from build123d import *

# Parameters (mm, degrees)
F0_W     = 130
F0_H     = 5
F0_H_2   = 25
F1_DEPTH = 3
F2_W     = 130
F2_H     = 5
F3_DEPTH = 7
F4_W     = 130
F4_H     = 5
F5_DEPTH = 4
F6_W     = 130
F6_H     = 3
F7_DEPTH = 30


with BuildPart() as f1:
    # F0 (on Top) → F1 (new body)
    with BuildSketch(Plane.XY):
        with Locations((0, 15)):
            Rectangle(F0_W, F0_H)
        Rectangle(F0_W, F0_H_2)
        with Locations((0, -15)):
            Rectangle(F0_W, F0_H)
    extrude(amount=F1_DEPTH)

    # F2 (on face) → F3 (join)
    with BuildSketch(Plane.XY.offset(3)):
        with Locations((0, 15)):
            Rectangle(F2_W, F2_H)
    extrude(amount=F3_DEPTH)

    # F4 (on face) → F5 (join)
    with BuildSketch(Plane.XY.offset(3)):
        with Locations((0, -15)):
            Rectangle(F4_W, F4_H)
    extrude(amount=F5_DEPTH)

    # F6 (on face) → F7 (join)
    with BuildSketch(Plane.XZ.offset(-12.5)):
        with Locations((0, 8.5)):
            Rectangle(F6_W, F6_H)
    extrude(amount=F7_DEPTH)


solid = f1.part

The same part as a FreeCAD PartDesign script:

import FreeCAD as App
import Part
import Sketcher

V = App.Vector
Q = App.Units.Quantity

doc = App.newDocument("Part")
body = doc.addObject("PartDesign::Body", "Body")

# Sketch on XY plane
sketch1 = body.newObject("Sketcher::SketchObject", "Sketch")
sketch1.AttachmentSupport = (doc.getObject("XY_Plane"), [""])
sketch1.MapMode = "FlatFace"
sketch1.addGeometry(Part.LineSegment(V(-65, 18, 0), V(-65, -18, 0)), False)
sketch1.addGeometry(Part.LineSegment(V(-65, -18, 0), V(65, -18, 0)), False)
sketch1.addGeometry(Part.LineSegment(V(65, -18, 0), V(65, 18, 0)), False)
sketch1.addGeometry(Part.LineSegment(V(65, 18, 0), V(-65, 18, 0)), False)
sketch1.addConstraint(Sketcher.Constraint("Coincident", 0, 2, 1, 1))
sketch1.addConstraint(Sketcher.Constraint("Coincident", 1, 2, 2, 1))
sketch1.addConstraint(Sketcher.Constraint("Coincident", 2, 2, 3, 1))
sketch1.addConstraint(Sketcher.Constraint("Coincident", 3, 2, 0, 1))
sketch1.addConstraint(Sketcher.Constraint("Vertical", 0))
sketch1.addConstraint(Sketcher.Constraint("Horizontal", 1))
sketch1.addConstraint(Sketcher.Constraint("Vertical", 2))
sketch1.addConstraint(Sketcher.Constraint("Horizontal", 3))
sketch1.addConstraint(Sketcher.Constraint("Symmetric", 0, 2, 2, 2, -1, 1))
sketch1.addConstraint(Sketcher.Constraint("DistanceX", 1, 1, 1, 2, Q("130 mm")))
sketch1.addConstraint(Sketcher.Constraint("DistanceY", 0, 2, 0, 1, Q("35 mm")))
pad1 = body.newObject("PartDesign::Pad", "Pad")
pad1.Profile = sketch1
pad1.Length = 3

# Sketch on XY plane
sketch2 = body.newObject("Sketcher::SketchObject", "Sketch001")
sketch2.AttachmentSupport = (doc.getObject("XY_Plane"), [""])
sketch2.MapMode = "FlatFace"
sketch2.AttachmentOffset = App.Placement(V(0, 0, 3), App.Rotation())
sketch2.addGeometry(Part.LineSegment(V(-65, 18, 0), V(-65, 12, 0)), False)
sketch2.addGeometry(Part.LineSegment(V(-65, 12, 0), V(65, 12, 0)), False)
sketch2.addGeometry(Part.LineSegment(V(65, 12, 0), V(65, 18, 0)), False)
sketch2.addGeometry(Part.LineSegment(V(65, 18, 0), V(-65, 18, 0)), False)
sketch2.addConstraint(Sketcher.Constraint("Coincident", 0, 2, 1, 1))
sketch2.addConstraint(Sketcher.Constraint("Coincident", 1, 2, 2, 1))
sketch2.addConstraint(Sketcher.Constraint("Coincident", 2, 2, 3, 1))
sketch2.addConstraint(Sketcher.Constraint("Coincident", 3, 2, 0, 1))
sketch2.addConstraint(Sketcher.Constraint("Vertical", 0))
sketch2.addConstraint(Sketcher.Constraint("Horizontal", 1))
sketch2.addConstraint(Sketcher.Constraint("Vertical", 2))
sketch2.addConstraint(Sketcher.Constraint("Horizontal", 3))
sketch2.addConstraint(Sketcher.Constraint("DistanceX", 1, 1, 1, 2, Q("130 mm")))
sketch2.addConstraint(Sketcher.Constraint("DistanceY", 0, 2, 0, 1, Q("5 mm")))
sketch2.addConstraint(Sketcher.Constraint("DistanceX", 0, 2, -1, 1, Q("65 mm")))
sketch2.addConstraint(Sketcher.Constraint("DistanceY", -1, 1, 0, 2, Q("12.5 mm")))
pad2 = body.newObject("PartDesign::Pad", "Pad001")
pad2.Profile = sketch2
pad2.Length = 7

# Sketch on XY plane
sketch3 = body.newObject("Sketcher::SketchObject", "Sketch002")
sketch3.AttachmentSupport = (doc.getObject("XY_Plane"), [""])
sketch3.MapMode = "FlatFace"
sketch3.AttachmentOffset = App.Placement(V(0, 0, 3), App.Rotation())
sketch3.addGeometry(Part.LineSegment(V(-65, -12, 0), V(-65, -18, 0)), False)
sketch3.addGeometry(Part.LineSegment(V(-65, -18, 0), V(65, -18, 0)), False)
sketch3.addGeometry(Part.LineSegment(V(65, -18, 0), V(65, -12, 0)), False)
sketch3.addGeometry(Part.LineSegment(V(65, -12, 0), V(-65, -12, 0)), False)
sketch3.addConstraint(Sketcher.Constraint("Coincident", 0, 2, 1, 1))
sketch3.addConstraint(Sketcher.Constraint("Coincident", 1, 2, 2, 1))
sketch3.addConstraint(Sketcher.Constraint("Coincident", 2, 2, 3, 1))
sketch3.addConstraint(Sketcher.Constraint("Coincident", 3, 2, 0, 1))
sketch3.addConstraint(Sketcher.Constraint("Vertical", 0))
sketch3.addConstraint(Sketcher.Constraint("Horizontal", 1))
sketch3.addConstraint(Sketcher.Constraint("Vertical", 2))
sketch3.addConstraint(Sketcher.Constraint("Horizontal", 3))
sketch3.addConstraint(Sketcher.Constraint("DistanceX", 1, 1, 1, 2, Q("130 mm")))
sketch3.addConstraint(Sketcher.Constraint("DistanceY", 0, 2, 0, 1, Q("5 mm")))
sketch3.addConstraint(Sketcher.Constraint("DistanceX", 0, 2, -1, 1, Q("65 mm")))
sketch3.addConstraint(Sketcher.Constraint("DistanceY", 0, 2, -1, 1, Q("17.5 mm")))
pad3 = body.newObject("PartDesign::Pad", "Pad002")
pad3.Profile = sketch3
pad3.Length = 4

# Sketch on XZ plane
sketch4 = body.newObject("Sketcher::SketchObject", "Sketch003")
sketch4.AttachmentSupport = (doc.getObject("XZ_Plane"), [""])
sketch4.MapMode = "FlatFace"
sketch4.AttachmentOffset = App.Placement(V(0, 0, -12.5), App.Rotation())
sketch4.addGeometry(Part.LineSegment(V(-65, 10, 0), V(-65, 7, 0)), False)
sketch4.addGeometry(Part.LineSegment(V(-65, 7, 0), V(65, 7, 0)), False)
sketch4.addGeometry(Part.LineSegment(V(65, 7, 0), V(65, 10, 0)), False)
sketch4.addGeometry(Part.LineSegment(V(65, 10, 0), V(-65, 10, 0)), False)
sketch4.addConstraint(Sketcher.Constraint("Coincident", 0, 2, 1, 1))
sketch4.addConstraint(Sketcher.Constraint("Coincident", 1, 2, 2, 1))
sketch4.addConstraint(Sketcher.Constraint("Coincident", 2, 2, 3, 1))
sketch4.addConstraint(Sketcher.Constraint("Coincident", 3, 2, 0, 1))
sketch4.addConstraint(Sketcher.Constraint("Vertical", 0))
sketch4.addConstraint(Sketcher.Constraint("Horizontal", 1))
sketch4.addConstraint(Sketcher.Constraint("Vertical", 2))
sketch4.addConstraint(Sketcher.Constraint("Horizontal", 3))
sketch4.addConstraint(Sketcher.Constraint("DistanceX", 1, 1, 1, 2, Q("130 mm")))
sketch4.addConstraint(Sketcher.Constraint("DistanceY", 0, 2, 0, 1, Q("3 mm")))
sketch4.addConstraint(Sketcher.Constraint("DistanceX", 0, 2, -1, 1, Q("65 mm")))
sketch4.addConstraint(Sketcher.Constraint("DistanceY", -1, 1, 0, 2, Q("7 mm")))
pad4 = body.newObject("PartDesign::Pad", "Pad003")
pad4.Profile = sketch4
pad4.Length = 30

doc.recompute()
